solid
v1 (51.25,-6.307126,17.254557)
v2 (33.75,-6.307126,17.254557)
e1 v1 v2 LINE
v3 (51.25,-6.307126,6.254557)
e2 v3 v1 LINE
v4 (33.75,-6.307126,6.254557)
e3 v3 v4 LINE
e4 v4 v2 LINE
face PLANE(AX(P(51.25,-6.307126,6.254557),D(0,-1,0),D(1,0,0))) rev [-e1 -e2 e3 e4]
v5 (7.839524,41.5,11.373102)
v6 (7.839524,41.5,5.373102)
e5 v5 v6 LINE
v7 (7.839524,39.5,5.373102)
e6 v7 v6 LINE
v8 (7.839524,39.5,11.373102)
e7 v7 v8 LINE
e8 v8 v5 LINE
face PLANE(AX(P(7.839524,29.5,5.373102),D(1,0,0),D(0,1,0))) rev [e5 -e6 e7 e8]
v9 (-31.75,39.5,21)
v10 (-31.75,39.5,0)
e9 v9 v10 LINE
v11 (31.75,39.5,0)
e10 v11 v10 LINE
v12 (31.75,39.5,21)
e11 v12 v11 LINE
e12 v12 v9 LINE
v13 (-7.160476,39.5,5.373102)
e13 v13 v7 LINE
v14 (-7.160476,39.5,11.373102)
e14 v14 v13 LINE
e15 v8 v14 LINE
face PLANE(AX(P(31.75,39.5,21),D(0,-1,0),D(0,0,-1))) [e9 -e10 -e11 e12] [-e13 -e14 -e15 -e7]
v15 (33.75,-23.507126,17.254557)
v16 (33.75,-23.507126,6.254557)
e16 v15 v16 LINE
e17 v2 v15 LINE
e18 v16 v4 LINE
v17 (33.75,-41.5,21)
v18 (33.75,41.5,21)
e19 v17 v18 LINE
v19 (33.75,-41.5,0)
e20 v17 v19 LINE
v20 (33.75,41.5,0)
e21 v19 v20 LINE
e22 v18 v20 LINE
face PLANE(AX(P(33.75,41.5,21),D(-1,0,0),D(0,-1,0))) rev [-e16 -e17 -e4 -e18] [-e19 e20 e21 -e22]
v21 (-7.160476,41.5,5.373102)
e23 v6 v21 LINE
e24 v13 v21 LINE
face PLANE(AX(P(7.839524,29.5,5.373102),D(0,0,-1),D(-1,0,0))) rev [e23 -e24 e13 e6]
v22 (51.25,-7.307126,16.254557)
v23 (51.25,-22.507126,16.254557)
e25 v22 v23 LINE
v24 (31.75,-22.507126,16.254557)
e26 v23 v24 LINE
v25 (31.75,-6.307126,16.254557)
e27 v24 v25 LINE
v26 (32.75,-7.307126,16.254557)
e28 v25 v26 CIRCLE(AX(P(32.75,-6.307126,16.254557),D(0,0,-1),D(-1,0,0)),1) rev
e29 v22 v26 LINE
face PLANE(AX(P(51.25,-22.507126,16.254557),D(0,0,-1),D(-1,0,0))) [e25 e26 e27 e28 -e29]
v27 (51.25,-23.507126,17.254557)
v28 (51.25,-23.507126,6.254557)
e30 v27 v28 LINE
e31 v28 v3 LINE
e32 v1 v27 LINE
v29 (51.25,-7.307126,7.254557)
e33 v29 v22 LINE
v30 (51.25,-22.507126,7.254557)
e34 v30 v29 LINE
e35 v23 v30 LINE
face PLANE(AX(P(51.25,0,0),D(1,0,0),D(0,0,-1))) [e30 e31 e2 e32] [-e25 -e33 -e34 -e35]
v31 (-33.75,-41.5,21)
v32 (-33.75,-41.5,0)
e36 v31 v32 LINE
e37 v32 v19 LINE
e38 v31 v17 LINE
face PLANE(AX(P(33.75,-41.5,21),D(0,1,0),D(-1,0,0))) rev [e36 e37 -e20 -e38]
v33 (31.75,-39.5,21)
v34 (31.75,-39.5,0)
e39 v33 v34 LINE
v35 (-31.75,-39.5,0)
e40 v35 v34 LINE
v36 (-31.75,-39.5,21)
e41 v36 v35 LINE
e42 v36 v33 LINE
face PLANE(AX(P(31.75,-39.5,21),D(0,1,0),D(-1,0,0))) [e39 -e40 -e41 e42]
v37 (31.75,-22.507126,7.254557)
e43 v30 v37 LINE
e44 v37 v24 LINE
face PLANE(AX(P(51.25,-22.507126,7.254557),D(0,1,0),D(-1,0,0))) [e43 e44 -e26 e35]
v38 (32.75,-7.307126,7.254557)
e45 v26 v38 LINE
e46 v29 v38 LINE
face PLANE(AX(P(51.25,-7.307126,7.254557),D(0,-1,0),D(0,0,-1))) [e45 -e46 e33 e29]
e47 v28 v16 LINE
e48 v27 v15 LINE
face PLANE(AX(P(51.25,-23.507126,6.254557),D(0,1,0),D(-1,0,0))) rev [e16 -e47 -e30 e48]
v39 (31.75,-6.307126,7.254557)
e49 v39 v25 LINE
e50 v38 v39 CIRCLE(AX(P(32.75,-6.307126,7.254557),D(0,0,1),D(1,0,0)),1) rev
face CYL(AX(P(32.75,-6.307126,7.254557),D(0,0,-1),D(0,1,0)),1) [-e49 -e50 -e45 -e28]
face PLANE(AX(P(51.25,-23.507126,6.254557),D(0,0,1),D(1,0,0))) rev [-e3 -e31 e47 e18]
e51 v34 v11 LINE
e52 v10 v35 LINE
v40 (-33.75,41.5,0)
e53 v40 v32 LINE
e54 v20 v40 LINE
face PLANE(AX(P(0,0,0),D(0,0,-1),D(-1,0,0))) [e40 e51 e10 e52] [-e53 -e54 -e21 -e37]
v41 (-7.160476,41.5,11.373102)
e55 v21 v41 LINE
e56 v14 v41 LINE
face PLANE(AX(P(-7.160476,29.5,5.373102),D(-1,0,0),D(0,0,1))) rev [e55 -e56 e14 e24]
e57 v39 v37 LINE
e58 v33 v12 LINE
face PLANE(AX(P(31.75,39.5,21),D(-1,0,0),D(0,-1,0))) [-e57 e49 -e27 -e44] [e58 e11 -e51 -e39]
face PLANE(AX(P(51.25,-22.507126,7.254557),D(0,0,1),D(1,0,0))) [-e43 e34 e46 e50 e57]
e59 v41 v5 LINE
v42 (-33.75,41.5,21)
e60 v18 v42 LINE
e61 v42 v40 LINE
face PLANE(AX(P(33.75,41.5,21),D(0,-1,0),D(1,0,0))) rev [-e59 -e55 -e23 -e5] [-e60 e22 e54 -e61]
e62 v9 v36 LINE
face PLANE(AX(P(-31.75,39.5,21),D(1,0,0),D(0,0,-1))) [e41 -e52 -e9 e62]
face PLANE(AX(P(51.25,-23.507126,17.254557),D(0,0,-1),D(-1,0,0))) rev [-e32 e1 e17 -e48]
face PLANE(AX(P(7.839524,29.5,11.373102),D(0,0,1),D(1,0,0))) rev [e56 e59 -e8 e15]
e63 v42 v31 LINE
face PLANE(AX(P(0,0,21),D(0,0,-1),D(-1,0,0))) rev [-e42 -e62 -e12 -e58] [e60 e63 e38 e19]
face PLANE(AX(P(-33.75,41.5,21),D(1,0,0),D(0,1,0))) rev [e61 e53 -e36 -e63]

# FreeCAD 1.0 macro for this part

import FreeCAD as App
import Part
import Sketcher


def edges_at(feature, points):
    """Names of the edges that pass closest to the given points."""
    edges = feature.Shape.Edges
    near = lambda p: min(range(len(edges)), key=lambda i: edges[i].distToShape(Part.Vertex(*p))[0])
    return sorted({f"Edge{near(p) + 1}" for p in points})

doc = App.newDocument("Part")
body = doc.addObject("PartDesign::Body", "Body")

# Sketch on XY plane
sketch1 = body.newObject("Sketcher::SketchObject", "Sketch")
sketch1.AttachmentSupport = (doc.getObject("XY_Plane"), [""])
sketch1.MapMode = "FlatFace"
sketch1.addGeometry(Part.LineSegment(App.Vector(-33.75, 41.5, 0), App.Vector(-33.75, -41.5, 0)), False)
sketch1.addGeometry(Part.LineSegment(App.Vector(-33.75, -41.5, 0), App.Vector(33.75, -41.5, 0)), False)
sketch1.addGeometry(Part.LineSegment(App.Vector(33.75, -41.5, 0), App.Vector(33.75, 41.5, 0)), False)
sketch1.addGeometry(Part.LineSegment(App.Vector(33.75, 41.5, 0), App.Vector(-33.75, 41.5, 0)), False)
sketch1.addGeometry(Part.LineSegment(App.Vector(31.75, -39.5, 0), App.Vector(-31.75, -39.5, 0)), False)
sketch1.addGeometry(Part.LineSegment(App.Vector(-31.75, -39.5, 0), App.Vector(-31.75, 39.5, 0)), False)
sketch1.addGeometry(Part.LineSegment(App.Vector(-31.75, 39.5, 0), App.Vector(31.75, 39.5, 0)), False)
sketch1.addGeometry(Part.LineSegment(App.Vector(31.75, 39.5, 0), App.Vector(31.75, -39.5, 0)), False)
sketch1.addConstraint(Sketcher.Constraint("Coincident", 0, 2, 1, 1))
sketch1.addConstraint(Sketcher.Constraint("Coincident", 1, 2, 2, 1))
sketch1.addConstraint(Sketcher.Constraint("Coincident", 2, 2, 3, 1))
sketch1.addConstraint(Sketcher.Constraint("Coincident", 3, 2, 0, 1))
sketch1.addConstraint(Sketcher.Constraint("Coincident", 4, 2, 5, 1))
sketch1.addConstraint(Sketcher.Constraint("Coincident", 5, 2, 6, 1))
sketch1.addConstraint(Sketcher.Constraint("Coincident", 6, 2, 7, 1))
sketch1.addConstraint(Sketcher.Constraint("Coincident", 7, 2, 4, 1))
sketch1.addConstraint(Sketcher.Constraint("Vertical", 0))
sketch1.addConstraint(Sketcher.Constraint("Horizontal", 1))
sketch1.addConstraint(Sketcher.Constraint("Vertical", 2))
sketch1.addConstraint(Sketcher.Constraint("Horizontal", 3))
sketch1.addConstraint(Sketcher.Constraint("Horizontal", 4))
sketch1.addConstraint(Sketcher.Constraint("Vertical", 5))
sketch1.addConstraint(Sketcher.Constraint("Horizontal", 6))
sketch1.addConstraint(Sketcher.Constraint("Vertical", 7))
sketch1.addConstraint(Sketcher.Constraint("Symmetric", 0, 2, 2, 2, -1, 1))
sketch1.addConstraint(Sketcher.Constraint("Symmetric", 4, 2, 6, 2, -1, 1))
sketch1.addConstraint(Sketcher.Constraint("DistanceY", 0, 2, 0, 1, 83.0))
sketch1.addConstraint(Sketcher.Constraint("DistanceY", 5, 1, 5, 2, 79.0))
sketch1.addConstraint(Sketcher.Constraint("DistanceX", 1, 1, 1, 2, 67.5))
sketch1.addConstraint(Sketcher.Constraint("DistanceX", 4, 2, 4, 1, 63.5))
pad1 = body.newObject("PartDesign::Pad", "Pad")
pad1.Profile = sketch1
pad1.Length = 21

# Sketch on YZ plane
sketch2 = body.newObject("Sketcher::SketchObject", "Sketch001")
sketch2.AttachmentSupport = (doc.getObject("YZ_Plane"), [""])
sketch2.MapMode = "FlatFace"
sketch2.AttachmentOffset = App.Placement(App.Vector(0, 0, 33.75), App.Rotation())
sketch2.addGeometry(Part.LineSegment(App.Vector(-6.307126, 17.254557, 0), App.Vector(-23.507126, 17.254557, 0)), False)
sketch2.addGeometry(Part.LineSegment(App.Vector(-23.507126, 17.254557, 0), App.Vector(-23.507126, 6.254557, 0)), False)
sketch2.addGeometry(Part.LineSegment(App.Vector(-23.507126, 6.254557, 0), App.Vector(-6.307126, 6.254557, 0)), False)
sketch2.addGeometry(Part.LineSegment(App.Vector(-6.307126, 6.254557, 0), App.Vector(-6.307126, 17.254557, 0)), False)
sketch2.addGeometry(Part.LineSegment(App.Vector(-22.507126, 7.254557, 0), App.Vector(-22.507126, 16.254557, 0)), False)
sketch2.addGeometry(Part.LineSegment(App.Vector(-22.507126, 16.254557, 0), App.Vector(-7.307126, 16.254557, 0)), False)
sketch2.addGeometry(Part.LineSegment(App.Vector(-7.307126, 16.254557, 0), App.Vector(-7.307126, 7.254557, 0)), False)
sketch2.addGeometry(Part.LineSegment(App.Vector(-7.307126, 7.254557, 0), App.Vector(-22.507126, 7.254557, 0)), False)
sketch2.addConstraint(Sketcher.Constraint("Coincident", 0, 2, 1, 1))
sketch2.addConstraint(Sketcher.Constraint("Coincident", 1, 2, 2, 1))
sketch2.addConstraint(Sketcher.Constraint("Coincident", 2, 2, 3, 1))
sketch2.addConstraint(Sketcher.Constraint("Coincident", 3, 2, 0, 1))
sketch2.addConstraint(Sketcher.Constraint("Coincident", 4, 2, 5, 1))
sketch2.addConstraint(Sketcher.Constraint("Coincident", 5, 2, 6, 1))
sketch2.addConstraint(Sketcher.Constraint("Coincident", 6, 2, 7, 1))
sketch2.addConstraint(Sketcher.Constraint("Coincident", 7, 2, 4, 1))
sketch2.addConstraint(Sketcher.Constraint("Horizontal", 0))
sketch2.addConstraint(Sketcher.Constraint("Vertical", 1))
sketch2.addConstraint(Sketcher.Constraint("Horizontal", 2))
sketch2.addConstraint(Sketcher.Constraint("Vertical", 3))
sketch2.addConstraint(Sketcher.Constraint("Vertical", 4))
sketch2.addConstraint(Sketcher.Constraint("Horizontal", 5))
sketch2.addConstraint(Sketcher.Constraint("Vertical", 6))
sketch2.addConstraint(Sketcher.Constraint("Horizontal", 7))
sketch2.addConstraint(Sketcher.Constraint("DistanceY", 1, 2, 1, 1, 11.0))
sketch2.addConstraint(Sketcher.Constraint("DistanceY", 4, 1, 4, 2, 9.0))
sketch2.addConstraint(Sketcher.Constraint("DistanceX", 0, 2, 0, 1, 17.2))
sketch2.addConstraint(Sketcher.Constraint("DistanceX", 5, 1, 5, 2, 15.2))
sketch2.addConstraint(Sketcher.Constraint("DistanceX", 0, 2, 4, 2, 1.0))
sketch2.addConstraint(Sketcher.Constraint("DistanceY", 4, 2, 0, 2, 1.0))
sketch2.addConstraint(Sketcher.Constraint("DistanceX", 0, 2, -1, 1, 23.507126))
sketch2.addConstraint(Sketcher.Constraint("DistanceY", -1, 1, 0, 2, 17.254557))
pad2 = body.newObject("PartDesign::Pad", "Pad001")
pad2.Profile = sketch2
pad2.Length = 17.5

# Sketch on YZ plane
sketch3 = body.newObject("Sketcher::SketchObject", "Sketch002")
sketch3.AttachmentSupport = (doc.getObject("YZ_Plane"), [""])
sketch3.MapMode = "FlatFace"
sketch3.AttachmentOffset = App.Placement(App.Vector(0, 0, 33.75), App.Rotation())
sketch3.addGeometry(Part.LineSegment(App.Vector(-7.307126, 16.254557, 0), App.Vector(-22.507126, 16.254557, 0)), False)
sketch3.addGeometry(Part.LineSegment(App.Vector(-22.507126, 16.254557, 0), App.Vector(-22.507126, 7.254557, 0)), False)
sketch3.addGeometry(Part.LineSegment(App.Vector(-22.507126, 7.254557, 0), App.Vector(-7.307126, 7.254557, 0)), False)
sketch3.addGeometry(Part.LineSegment(App.Vector(-7.307126, 7.254557, 0), App.Vector(-7.307126, 16.254557, 0)), False)
sketch3.addConstraint(Sketcher.Constraint("Coincident", 0, 2, 1, 1))
sketch3.addConstraint(Sketcher.Constraint("Coincident", 1, 2, 2, 1))
sketch3.addConstraint(Sketcher.Constraint("Coincident", 2, 2, 3, 1))
sketch3.addConstraint(Sketcher.Constraint("Coincident", 3, 2, 0, 1))
sketch3.addConstraint(Sketcher.Constraint("Horizontal", 0))
sketch3.addConstraint(Sketcher.Constraint("Vertical", 1))
sketch3.addConstraint(Sketcher.Constraint("Horizontal", 2))
sketch3.addConstraint(Sketcher.Constraint("Vertical", 3))
sketch3.addConstraint(Sketcher.Constraint("DistanceY", 1, 2, 1, 1, 9.0))
sketch3.addConstraint(Sketcher.Constraint("DistanceX", 0, 2, 0, 1, 15.2))
sketch3.addConstraint(Sketcher.Constraint("DistanceX", 0, 2, -1, 1, 22.507126))
sketch3.addConstraint(Sketcher.Constraint("DistanceY", -1, 1, 0, 2, 16.254557))
pocket1 = body.newObject("PartDesign::Pocket", "Pocket")
pocket1.Profile = sketch3
pocket1.Length = 17
doc.recompute()

fillet = body.newObject("PartDesign::Fillet", "Fillet")
fillet.Base = (pocket1, edges_at(pocket1, [(31.75, -7.307, 11.755)]))
fillet.Radius = 1

# Sketch on XZ plane
sketch4 = body.newObject("Sketcher::SketchObject", "Sketch003")
sketch4.AttachmentSupport = (doc.getObject("XZ_Plane"), [""])
sketch4.MapMode = "FlatFace"
sketch4.AttachmentOffset = App.Placement(App.Vector(0, 0, -41.5), App.Rotation())
sketch4.addGeometry(Part.LineSegment(App.Vector(-7.160476, 5.373102, 0), App.Vector(-7.160476, 11.373102, 0)), False)
sketch4.addGeometry(Part.LineSegment(App.Vector(-7.160476, 11.373102, 0), App.Vector(7.839524, 11.373102, 0)), False)
sketch4.addGeometry(Part.LineSegment(App.Vector(7.839524, 11.373102, 0), App.Vector(7.839524, 5.373102, 0)), False)
sketch4.addGeometry(Part.LineSegment(App.Vector(7.839524, 5.373102, 0), App.Vector(-7.160476, 5.373102, 0)), False)
sketch4.addConstraint(Sketcher.Constraint("Coincident", 0, 2, 1, 1))
sketch4.addConstraint(Sketcher.Constraint("Coincident", 1, 2, 2, 1))
sketch4.addConstraint(Sketcher.Constraint("Coincident", 2, 2, 3, 1))
sketch4.addConstraint(Sketcher.Constraint("Coincident", 3, 2, 0, 1))
sketch4.addConstraint(Sketcher.Constraint("Vertical", 0))
sketch4.addConstraint(Sketcher.Constraint("Horizontal", 1))
sketch4.addConstraint(Sketcher.Constraint("Vertical", 2))
sketch4.addConstraint(Sketcher.Constraint("Horizontal", 3))
sketch4.addConstraint(Sketcher.Constraint("DistanceX", 1, 1, 1, 2, 15.0))
sketch4.addConstraint(Sketcher.Constraint("DistanceY", 0, 1, 0, 2, 6.0))
sketch4.addConstraint(Sketcher.Constraint("DistanceY", -1, 1, 0, 2, 11.373102))
sketch4.addConstraint(Sketcher.Constraint("DistanceX", 0, 2, -1, 1, 7.160476))
pocket2 = body.newObject("PartDesign::Pocket", "Pocket001")
pocket2.Profile = sketch4
pocket2.Length = 12
pocket2.Reversed = True

doc.recompute()
